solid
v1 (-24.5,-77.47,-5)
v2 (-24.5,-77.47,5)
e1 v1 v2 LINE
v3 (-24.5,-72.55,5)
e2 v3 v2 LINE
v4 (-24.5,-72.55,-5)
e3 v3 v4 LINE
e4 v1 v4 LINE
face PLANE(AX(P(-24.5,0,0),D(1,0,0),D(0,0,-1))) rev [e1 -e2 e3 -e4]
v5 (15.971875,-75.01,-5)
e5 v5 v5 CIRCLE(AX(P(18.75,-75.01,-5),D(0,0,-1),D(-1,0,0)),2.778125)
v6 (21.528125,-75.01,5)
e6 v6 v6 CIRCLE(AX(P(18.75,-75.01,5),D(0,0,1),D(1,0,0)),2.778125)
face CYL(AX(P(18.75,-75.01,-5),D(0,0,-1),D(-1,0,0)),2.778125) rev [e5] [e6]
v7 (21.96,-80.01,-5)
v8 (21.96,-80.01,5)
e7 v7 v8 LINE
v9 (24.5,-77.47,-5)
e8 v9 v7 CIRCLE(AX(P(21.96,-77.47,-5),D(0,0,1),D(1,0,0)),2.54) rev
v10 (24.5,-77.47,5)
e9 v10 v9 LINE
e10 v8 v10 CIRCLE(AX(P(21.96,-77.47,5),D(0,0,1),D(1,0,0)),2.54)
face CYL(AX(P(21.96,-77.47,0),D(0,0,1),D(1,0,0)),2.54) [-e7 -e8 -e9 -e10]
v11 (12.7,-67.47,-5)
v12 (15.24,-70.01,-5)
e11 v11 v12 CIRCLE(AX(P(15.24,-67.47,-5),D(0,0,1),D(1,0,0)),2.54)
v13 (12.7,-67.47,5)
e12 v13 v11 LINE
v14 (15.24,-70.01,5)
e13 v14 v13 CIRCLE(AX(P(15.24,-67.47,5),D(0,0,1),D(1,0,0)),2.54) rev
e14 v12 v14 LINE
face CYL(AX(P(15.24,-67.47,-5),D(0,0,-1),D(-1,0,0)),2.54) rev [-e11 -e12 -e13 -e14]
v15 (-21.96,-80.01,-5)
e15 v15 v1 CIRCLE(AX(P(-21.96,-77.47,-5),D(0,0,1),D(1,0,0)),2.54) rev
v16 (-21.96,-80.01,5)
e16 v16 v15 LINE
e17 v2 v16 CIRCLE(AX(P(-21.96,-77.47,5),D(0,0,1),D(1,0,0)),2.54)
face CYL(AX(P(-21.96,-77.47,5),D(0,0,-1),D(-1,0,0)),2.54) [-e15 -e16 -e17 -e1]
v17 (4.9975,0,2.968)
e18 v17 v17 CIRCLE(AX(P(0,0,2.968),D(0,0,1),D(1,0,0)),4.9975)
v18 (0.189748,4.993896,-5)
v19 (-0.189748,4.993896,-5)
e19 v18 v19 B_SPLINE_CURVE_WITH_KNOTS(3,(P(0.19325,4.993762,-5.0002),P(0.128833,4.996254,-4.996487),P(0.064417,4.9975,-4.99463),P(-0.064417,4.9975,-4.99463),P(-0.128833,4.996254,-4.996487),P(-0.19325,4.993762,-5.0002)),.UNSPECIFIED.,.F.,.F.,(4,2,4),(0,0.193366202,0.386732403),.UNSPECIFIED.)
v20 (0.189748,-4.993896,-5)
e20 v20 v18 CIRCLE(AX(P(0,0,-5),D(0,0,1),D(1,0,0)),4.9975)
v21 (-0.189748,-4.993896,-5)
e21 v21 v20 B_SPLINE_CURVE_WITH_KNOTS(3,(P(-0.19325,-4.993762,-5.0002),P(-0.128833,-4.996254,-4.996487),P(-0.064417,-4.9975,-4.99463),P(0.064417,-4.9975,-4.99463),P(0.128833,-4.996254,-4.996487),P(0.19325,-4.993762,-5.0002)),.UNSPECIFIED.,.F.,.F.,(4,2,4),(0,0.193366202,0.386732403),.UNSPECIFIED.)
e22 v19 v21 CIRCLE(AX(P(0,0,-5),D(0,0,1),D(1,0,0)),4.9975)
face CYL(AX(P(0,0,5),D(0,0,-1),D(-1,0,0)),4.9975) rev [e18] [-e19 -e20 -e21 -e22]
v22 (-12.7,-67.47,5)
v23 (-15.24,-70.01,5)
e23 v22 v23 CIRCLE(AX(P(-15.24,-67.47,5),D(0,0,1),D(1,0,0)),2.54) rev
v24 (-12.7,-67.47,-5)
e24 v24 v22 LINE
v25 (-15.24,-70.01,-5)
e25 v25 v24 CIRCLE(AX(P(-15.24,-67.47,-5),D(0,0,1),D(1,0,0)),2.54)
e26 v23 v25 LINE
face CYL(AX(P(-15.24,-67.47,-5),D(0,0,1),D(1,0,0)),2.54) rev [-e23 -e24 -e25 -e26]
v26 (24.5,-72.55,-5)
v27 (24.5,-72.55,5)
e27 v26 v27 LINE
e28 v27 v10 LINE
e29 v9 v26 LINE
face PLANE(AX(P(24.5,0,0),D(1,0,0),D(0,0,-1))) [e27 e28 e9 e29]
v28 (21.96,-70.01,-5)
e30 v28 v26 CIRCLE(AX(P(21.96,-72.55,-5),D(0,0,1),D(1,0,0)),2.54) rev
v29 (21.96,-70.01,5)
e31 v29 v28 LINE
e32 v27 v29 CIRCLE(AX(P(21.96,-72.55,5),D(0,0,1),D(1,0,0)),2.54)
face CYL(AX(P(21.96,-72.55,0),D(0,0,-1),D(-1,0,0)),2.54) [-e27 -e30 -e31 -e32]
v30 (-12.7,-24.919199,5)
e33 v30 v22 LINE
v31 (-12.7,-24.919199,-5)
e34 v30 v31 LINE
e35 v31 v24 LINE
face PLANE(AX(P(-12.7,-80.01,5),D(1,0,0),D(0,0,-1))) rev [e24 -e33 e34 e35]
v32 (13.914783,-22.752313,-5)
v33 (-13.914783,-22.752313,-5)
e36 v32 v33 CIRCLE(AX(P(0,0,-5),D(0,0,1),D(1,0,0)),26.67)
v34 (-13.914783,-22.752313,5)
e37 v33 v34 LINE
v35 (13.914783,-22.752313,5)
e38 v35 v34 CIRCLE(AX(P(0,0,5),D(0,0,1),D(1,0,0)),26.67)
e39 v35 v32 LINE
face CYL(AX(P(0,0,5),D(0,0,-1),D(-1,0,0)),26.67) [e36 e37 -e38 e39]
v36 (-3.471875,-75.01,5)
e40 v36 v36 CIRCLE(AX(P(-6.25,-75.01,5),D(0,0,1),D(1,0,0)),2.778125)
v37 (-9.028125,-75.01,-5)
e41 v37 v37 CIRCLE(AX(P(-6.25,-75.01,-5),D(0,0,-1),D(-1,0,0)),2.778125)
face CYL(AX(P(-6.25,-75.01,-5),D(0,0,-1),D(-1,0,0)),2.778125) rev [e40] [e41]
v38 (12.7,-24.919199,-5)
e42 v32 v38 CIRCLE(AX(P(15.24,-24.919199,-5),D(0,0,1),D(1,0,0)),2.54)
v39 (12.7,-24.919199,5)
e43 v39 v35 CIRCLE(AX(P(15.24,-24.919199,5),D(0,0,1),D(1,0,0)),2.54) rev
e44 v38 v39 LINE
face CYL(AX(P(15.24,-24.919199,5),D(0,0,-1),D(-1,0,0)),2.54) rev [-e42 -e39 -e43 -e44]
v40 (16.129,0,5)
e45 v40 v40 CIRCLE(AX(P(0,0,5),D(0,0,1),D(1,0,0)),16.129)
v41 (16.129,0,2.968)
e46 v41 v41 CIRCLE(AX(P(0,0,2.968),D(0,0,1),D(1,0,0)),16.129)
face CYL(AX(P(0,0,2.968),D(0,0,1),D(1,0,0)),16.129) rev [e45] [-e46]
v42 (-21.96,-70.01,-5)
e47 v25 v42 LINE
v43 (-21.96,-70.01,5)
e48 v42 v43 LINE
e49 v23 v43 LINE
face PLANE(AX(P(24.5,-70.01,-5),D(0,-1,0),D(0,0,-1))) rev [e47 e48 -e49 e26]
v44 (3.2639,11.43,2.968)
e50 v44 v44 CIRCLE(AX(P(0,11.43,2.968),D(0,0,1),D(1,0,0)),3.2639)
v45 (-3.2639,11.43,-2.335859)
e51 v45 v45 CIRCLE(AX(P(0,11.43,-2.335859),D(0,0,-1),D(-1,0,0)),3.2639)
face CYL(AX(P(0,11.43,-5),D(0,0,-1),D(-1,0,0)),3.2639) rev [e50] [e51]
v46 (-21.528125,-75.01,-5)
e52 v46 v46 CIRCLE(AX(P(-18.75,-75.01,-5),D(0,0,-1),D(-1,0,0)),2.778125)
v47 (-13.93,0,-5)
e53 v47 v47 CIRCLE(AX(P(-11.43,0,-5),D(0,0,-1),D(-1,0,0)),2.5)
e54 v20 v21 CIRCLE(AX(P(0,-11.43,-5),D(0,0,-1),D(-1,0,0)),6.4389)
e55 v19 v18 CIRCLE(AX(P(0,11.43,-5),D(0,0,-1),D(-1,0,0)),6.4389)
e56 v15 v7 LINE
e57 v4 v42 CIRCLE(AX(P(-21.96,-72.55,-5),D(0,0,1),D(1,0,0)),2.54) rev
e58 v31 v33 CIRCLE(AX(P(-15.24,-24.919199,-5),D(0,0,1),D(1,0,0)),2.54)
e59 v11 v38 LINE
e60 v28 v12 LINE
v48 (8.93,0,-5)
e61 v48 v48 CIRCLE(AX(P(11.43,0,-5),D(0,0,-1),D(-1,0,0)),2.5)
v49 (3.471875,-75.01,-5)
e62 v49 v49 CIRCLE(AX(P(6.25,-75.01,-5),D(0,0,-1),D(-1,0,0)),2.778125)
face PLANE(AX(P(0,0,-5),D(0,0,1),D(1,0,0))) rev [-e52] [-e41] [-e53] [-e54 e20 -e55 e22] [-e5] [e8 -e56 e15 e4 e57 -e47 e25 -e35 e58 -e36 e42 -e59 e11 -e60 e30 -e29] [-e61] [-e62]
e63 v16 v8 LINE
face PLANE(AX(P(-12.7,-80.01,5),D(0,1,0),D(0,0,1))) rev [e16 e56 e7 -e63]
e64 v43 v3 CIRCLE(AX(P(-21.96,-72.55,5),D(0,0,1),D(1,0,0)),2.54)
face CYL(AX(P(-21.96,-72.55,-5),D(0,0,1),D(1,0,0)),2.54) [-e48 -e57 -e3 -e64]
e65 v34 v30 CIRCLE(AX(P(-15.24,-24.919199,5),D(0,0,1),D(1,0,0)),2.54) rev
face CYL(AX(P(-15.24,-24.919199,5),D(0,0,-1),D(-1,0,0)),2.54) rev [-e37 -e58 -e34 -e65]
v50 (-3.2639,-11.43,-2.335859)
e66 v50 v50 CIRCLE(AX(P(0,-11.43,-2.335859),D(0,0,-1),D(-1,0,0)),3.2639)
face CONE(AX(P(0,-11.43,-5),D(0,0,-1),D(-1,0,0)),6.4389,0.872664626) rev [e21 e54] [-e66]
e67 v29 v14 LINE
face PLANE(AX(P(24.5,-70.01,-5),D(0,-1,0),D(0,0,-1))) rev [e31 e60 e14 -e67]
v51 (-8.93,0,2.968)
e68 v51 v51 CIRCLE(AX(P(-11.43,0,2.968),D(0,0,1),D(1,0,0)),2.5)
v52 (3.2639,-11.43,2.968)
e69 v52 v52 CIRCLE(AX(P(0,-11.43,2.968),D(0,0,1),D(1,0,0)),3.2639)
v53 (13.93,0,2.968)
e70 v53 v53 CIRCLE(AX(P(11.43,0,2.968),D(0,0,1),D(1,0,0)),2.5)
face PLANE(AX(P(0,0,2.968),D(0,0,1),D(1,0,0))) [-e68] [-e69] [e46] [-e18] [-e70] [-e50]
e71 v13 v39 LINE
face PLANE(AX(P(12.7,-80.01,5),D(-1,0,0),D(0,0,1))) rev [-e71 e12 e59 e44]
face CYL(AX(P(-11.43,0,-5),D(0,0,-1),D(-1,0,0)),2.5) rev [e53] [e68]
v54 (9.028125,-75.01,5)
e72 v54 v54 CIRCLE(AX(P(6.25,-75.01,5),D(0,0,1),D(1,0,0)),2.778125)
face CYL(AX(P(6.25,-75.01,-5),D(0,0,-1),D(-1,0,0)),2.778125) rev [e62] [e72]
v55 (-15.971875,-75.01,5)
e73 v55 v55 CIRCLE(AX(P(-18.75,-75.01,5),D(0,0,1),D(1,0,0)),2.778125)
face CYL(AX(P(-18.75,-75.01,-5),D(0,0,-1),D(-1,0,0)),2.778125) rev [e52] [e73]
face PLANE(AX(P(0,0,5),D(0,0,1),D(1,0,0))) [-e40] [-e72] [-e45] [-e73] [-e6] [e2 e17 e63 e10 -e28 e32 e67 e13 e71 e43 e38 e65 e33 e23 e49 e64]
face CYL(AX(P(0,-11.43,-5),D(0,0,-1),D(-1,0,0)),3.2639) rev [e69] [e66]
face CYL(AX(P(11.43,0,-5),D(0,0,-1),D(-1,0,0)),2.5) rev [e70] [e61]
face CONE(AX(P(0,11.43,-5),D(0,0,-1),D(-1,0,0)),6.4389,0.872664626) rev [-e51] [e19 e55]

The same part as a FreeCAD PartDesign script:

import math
import FreeCAD as App
import Part
import Sketcher
Q = App.Units.Quantity


def edges_at(feature, points):
    """Names of the edges that pass closest to the given points."""
    edges = feature.Shape.Edges
    near = lambda p: min(range(len(edges)), key=lambda i: edges[i].distToShape(Part.Vertex(*p))[0])
    return sorted({f"Edge{near(p) + 1}" for p in points})

doc = App.newDocument("Part")
body = doc.addObject("PartDesign::Body", "Body")

# Sketch on XY plane
sketch1 = body.newObject("Sketcher::SketchObject", "Sketch")
sketch1.AttachmentSupport = (doc.getObject("XY_Plane"), [""])
sketch1.MapMode = "FlatFace"
sketch1.addGeometry(Part.LineSegment(App.Vector(-12.7, -80.01, 0), App.Vector(12.7, -80.01, 0)), False)
sketch1.addGeometry(Part.LineSegment(App.Vector(12.7, -80.01, 0), App.Vector(12.7, -23.452055, 0)), False)
sketch1.addGeometry(Part.ArcOfCircle(Part.Circle(App.Vector(0, 0, 0), App.Vector(0, 0, 1), 26.67), math.radians(-61.56311), math.radians(241.56311)), False)
sketch1.addGeometry(Part.LineSegment(App.Vector(-12.7, -23.452055, 0), App.Vector(-12.7, -80.01, 0)), False)
sketch1.addGeometry(Part.Circle(App.Vector(0, 0, 0), App.Vector(0, 0, 1), 4.9975), False)
sketch1.addConstraint(Sketcher.Constraint("Coincident", 0, 2, 1, 1))
sketch1.addConstraint(Sketcher.Constraint("Coincident", 1, 2, 2, 1))
sketch1.addConstraint(Sketcher.Constraint("Coincident", 2, 2, 3, 1))
sketch1.addConstraint(Sketcher.Constraint("Coincident", 3, 2, 0, 1))
sketch1.addConstraint(Sketcher.Constraint("Horizontal", 0))
sketch1.addConstraint(Sketcher.Constraint("Vertical", 1))
sketch1.addConstraint(Sketcher.Constraint("Vertical", 3))
sketch1.addConstraint(Sketcher.Constraint("Coincident", 2, 3, -1, 1))
sketch1.addConstraint(Sketcher.Constraint("Coincident", 4, 3, -1, 1))
sketch1.addConstraint(Sketcher.Constraint("Horizontal", 1, 2, 2, 2))
sketch1.addConstraint(Sketcher.Constraint("DistanceX", 0, 1, 0, 2, Q("1 in")))
sketch1.addConstraint(Sketcher.Constraint("Radius", 2, Q("1.05 in")))
sketch1.addConstraint(Sketcher.Constraint("Diameter", 4, 9.995))
sketch1.addConstraint(Sketcher.Constraint("DistanceY", 0, 2, -1, 1, Q("3.15 in")))
pad1 = body.newObject("PartDesign::Pad", "Pad")
pad1.Profile = sketch1
pad1.Length = 10
pad1.Midplane = True

# Sketch on XY plane
sketch2 = body.newObject("Sketcher::SketchObject", "Sketch001")
sketch2.AttachmentSupport = (doc.getObject("XY_Plane"), [""])
sketch2.MapMode = "FlatFace"
sketch2.AttachmentOffset = App.Placement(App.Vector(0, 0, 5), App.Rotation())
sketch2.addGeometry(Part.Circle(App.Vector(0, 0, 0), App.Vector(0, 0, 1), 16.129), False)
sketch2.addConstraint(Sketcher.Constraint("Coincident", 0, 3, -1, 1))
sketch2.addConstraint(Sketcher.Constraint("Diameter", 0, Q("1.27 in")))
pocket1 = body.newObject("PartDesign::Pocket", "Pocket")
pocket1.Profile = sketch2
pocket1.Length = Q("0.08 in")

# Sketch on XY plane
sketch3 = body.newObject("Sketcher::SketchObject", "Sketch002")
sketch3.AttachmentSupport = (doc.getObject("XY_Plane"), [""])
sketch3.MapMode = "FlatFace"
sketch3.AttachmentOffset = App.Placement(App.Vector(0, 0, -5), App.Rotation())
sketch3.addGeometry(Part.Circle(App.Vector(11.43, 0, 0), App.Vector(0, 0, 1), 2.5), False)
sketch3.addGeometry(Part.Circle(App.Vector(-11.43, 0, 0), App.Vector(0, 0, 1), 2.5), False)
sketch3.addConstraint(Sketcher.Constraint("Equal", 0, 1))
sketch3.addConstraint(Sketcher.Constraint("Symmetric", 0, 3, 1, 3, -1, 1))
sketch3.addConstraint(Sketcher.Constraint("PointOnObject", 0, 3, -1))
sketch3.addConstraint(Sketcher.Constraint("DistanceX", 1, 3, 0, 3, Q("0.9 in")))
sketch3.addConstraint(Sketcher.Constraint("Diameter", 0, 5.0))
doc.recompute()
hole = body.newObject("PartDesign::Hole", "Hole")
hole.Profile = sketch3
hole.ThreadType = "None"
hole.Diameter = 5
hole.DepthType = "Dimension"
hole.Depth = Q("0.65 in")
hole.DrillPoint = "Angled"
hole.DrillPointAngle = 118
hole.Reversed = True

# Sketch on XY plane
sketch4 = body.newObject("Sketcher::SketchObject", "Sketch003")
sketch4.AttachmentSupport = (doc.getObject("XY_Plane"), [""])
sketch4.MapMode = "FlatFace"
sketch4.AttachmentOffset = App.Placement(App.Vector(0, 0, -5), App.Rotation())
sketch4.addGeometry(Part.Circle(App.Vector(0, 11.43, 0), App.Vector(0, 0, 1), 3.2639), False)
sketch4.addGeometry(Part.Circle(App.Vector(0, -11.43, 0), App.Vector(0, 0, 1), 3.2639), False)
sketch4.addConstraint(Sketcher.Constraint("Equal", 0, 1))
sketch4.addConstraint(Sketcher.Constraint("Symmetric", 0, 3, 1, 3, -1, 1))
sketch4.addConstraint(Sketcher.Constraint("PointOnObject", 0, 3, -2))
sketch4.addConstraint(Sketcher.Constraint("Diameter", 0, Q("0.257 in")))
sketch4.addConstraint(Sketcher.Constraint("DistanceY", 1, 3, 0, 3, Q("0.9 in")))
doc.recompute()
hole2 = body.newObject("PartDesign::Hole", "Hole001")
hole2.Profile = sketch4
hole2.ThreadType = "None"
hole2.Diameter = Q("0.257 in")
hole2.DepthType = "Dimension"
hole2.Depth = Q("0.65 in")
hole2.DrillPoint = "Angled"
hole2.DrillPointAngle = 118
hole2.HoleCutType = "Countersink"
hole2.HoleCutDiameter = Q("0.507 in")
hole2.HoleCutCountersinkAngle = 100
hole2.Reversed = True

# Sketch on YZ plane
sketch5 = body.newObject("Sketcher::SketchObject", "Sketch004")
sketch5.AttachmentSupport = (doc.getObject("YZ_Plane"), [""])
sketch5.MapMode = "FlatFace"
sketch5.addGeometry(Part.LineSegment(App.Vector(-70.01, 5, 0), App.Vector(-80.01, 5, 0)), False)
sketch5.addGeometry(Part.LineSegment(App.Vector(-80.01, 5, 0), App.Vector(-80.01, -5, 0)), False)
sketch5.addGeometry(Part.LineSegment(App.Vector(-80.01, -5, 0), App.Vector(-70.01, -5, 0)), False)
sketch5.addGeometry(Part.LineSegment(App.Vector(-70.01, -5, 0), App.Vector(-70.01, 5, 0)), False)
sketch5.addConstraint(Sketcher.Constraint("Coincident", 0, 2, 1, 1))
sketch5.addConstraint(Sketcher.Constraint("Coincident", 1, 2, 2, 1))
sketch5.addConstraint(Sketcher.Constraint("Coincident", 2, 2, 3, 1))
sketch5.addConstraint(Sketcher.Constraint("Coincident", 3, 2, 0, 1))
sketch5.addConstraint(Sketcher.Constraint("Horizontal", 0))
sketch5.addConstraint(Sketcher.Constraint("Vertical", 1))
sketch5.addConstraint(Sketcher.Constraint("Horizontal", 2))
sketch5.addConstraint(Sketcher.Constraint("Vertical", 3))
sketch5.addConstraint(Sketcher.Constraint("Equal", 2, 1))
sketch5.addConstraint(Sketcher.Constraint("DistanceX", 0, 2, -1, 1, Q("3.15 in")))
sketch5.addConstraint(Sketcher.Constraint("DistanceX", 0, 2, 0, 1, 10.0))
sketch5.addConstraint(Sketcher.Constraint("DistanceY", -1, 1, 0, 2, 5.0))
pad2 = body.newObject("PartDesign::Pad", "Pad001")
pad2.Profile = sketch5
pad2.Length = 49
pad2.Midplane = True
doc.recompute()

fillet = body.newObject("PartDesign::Fillet", "Fillet")
fillet.Base = (pad2, edges_at(pad2, [
    (12.7, -23.452, 0),
    (12.7, -70.01, 0),
    (-12.7, -23.452, 0),
    (-12.7, -70.01, 0),
    (-24.5, -70.01, 0),
    (-24.5, -80.01, 0),
    (24.5, -70.01, 0),
    (24.5, -80.01, 0),
]))
fillet.Radius = Q("0.1 in")

# Sketch on XY plane
sketch6 = body.newObject("Sketcher::SketchObject", "Sketch005")
sketch6.AttachmentSupport = (doc.getObject("XY_Plane"), [""])
sketch6.MapMode = "FlatFace"
sketch6.AttachmentOffset = App.Placement(App.Vector(0, 0, -5), App.Rotation())
sketch6.addGeometry(Part.Circle(App.Vector(-18.75, -75.01, 0), App.Vector(0, 0, 1), 2.778125), False)
sketch6.addGeometry(Part.Circle(App.Vector(-6.25, -75.01, 0), App.Vector(0, 0, 1), 2.778125), False)
sketch6.addGeometry(Part.Circle(App.Vector(6.25, -75.01, 0), App.Vector(0, 0, 1), 2.778125), False)
sketch6.addGeometry(Part.Circle(App.Vector(18.75, -75.01, 0), App.Vector(0, 0, 1), 2.778125), False)
sketch6.addConstraint(Sketcher.Constraint("Equal", 0, 1))
sketch6.addConstraint(Sketcher.Constraint("Equal", 1, 2))
sketch6.addConstraint(Sketcher.Constraint("Equal", 2, 3))
sketch6.addConstraint(Sketcher.Constraint("Symmetric", 1, 3, 2, 3, -2))
sketch6.addConstraint(Sketcher.Constraint("Symmetric", 0, 3, 3, 3, -2))
sketch6.addConstraint(Sketcher.Constraint("Horizontal", 0, 3, 1, 3))
sketch6.addConstraint(Sketcher.Constraint("Diameter", 0, Q("0.21875 in")))
sketch6.addConstraint(Sketcher.Constraint("DistanceX", 0, 3, -1, 1, 18.75))
sketch6.addConstraint(Sketcher.Constraint("DistanceY", 0, 3, -1, 1, 75.01))
sketch6.addConstraint(Sketcher.Constraint("DistanceX", 1, 3, -1, 1, 6.25))
doc.recompute()
hole3 = body.newObject("PartDesign::Hole", "Hole002")
hole3.Profile = sketch6
hole3.ThreadType = "None"
hole3.Diameter = Q("0.21875 in")
hole3.DepthType = "Dimension"
hole3.Depth = Q("0.65 in")
hole3.DrillPoint = "Angled"
hole3.DrillPointAngle = 118
hole3.Reversed = True

doc.recompute()
